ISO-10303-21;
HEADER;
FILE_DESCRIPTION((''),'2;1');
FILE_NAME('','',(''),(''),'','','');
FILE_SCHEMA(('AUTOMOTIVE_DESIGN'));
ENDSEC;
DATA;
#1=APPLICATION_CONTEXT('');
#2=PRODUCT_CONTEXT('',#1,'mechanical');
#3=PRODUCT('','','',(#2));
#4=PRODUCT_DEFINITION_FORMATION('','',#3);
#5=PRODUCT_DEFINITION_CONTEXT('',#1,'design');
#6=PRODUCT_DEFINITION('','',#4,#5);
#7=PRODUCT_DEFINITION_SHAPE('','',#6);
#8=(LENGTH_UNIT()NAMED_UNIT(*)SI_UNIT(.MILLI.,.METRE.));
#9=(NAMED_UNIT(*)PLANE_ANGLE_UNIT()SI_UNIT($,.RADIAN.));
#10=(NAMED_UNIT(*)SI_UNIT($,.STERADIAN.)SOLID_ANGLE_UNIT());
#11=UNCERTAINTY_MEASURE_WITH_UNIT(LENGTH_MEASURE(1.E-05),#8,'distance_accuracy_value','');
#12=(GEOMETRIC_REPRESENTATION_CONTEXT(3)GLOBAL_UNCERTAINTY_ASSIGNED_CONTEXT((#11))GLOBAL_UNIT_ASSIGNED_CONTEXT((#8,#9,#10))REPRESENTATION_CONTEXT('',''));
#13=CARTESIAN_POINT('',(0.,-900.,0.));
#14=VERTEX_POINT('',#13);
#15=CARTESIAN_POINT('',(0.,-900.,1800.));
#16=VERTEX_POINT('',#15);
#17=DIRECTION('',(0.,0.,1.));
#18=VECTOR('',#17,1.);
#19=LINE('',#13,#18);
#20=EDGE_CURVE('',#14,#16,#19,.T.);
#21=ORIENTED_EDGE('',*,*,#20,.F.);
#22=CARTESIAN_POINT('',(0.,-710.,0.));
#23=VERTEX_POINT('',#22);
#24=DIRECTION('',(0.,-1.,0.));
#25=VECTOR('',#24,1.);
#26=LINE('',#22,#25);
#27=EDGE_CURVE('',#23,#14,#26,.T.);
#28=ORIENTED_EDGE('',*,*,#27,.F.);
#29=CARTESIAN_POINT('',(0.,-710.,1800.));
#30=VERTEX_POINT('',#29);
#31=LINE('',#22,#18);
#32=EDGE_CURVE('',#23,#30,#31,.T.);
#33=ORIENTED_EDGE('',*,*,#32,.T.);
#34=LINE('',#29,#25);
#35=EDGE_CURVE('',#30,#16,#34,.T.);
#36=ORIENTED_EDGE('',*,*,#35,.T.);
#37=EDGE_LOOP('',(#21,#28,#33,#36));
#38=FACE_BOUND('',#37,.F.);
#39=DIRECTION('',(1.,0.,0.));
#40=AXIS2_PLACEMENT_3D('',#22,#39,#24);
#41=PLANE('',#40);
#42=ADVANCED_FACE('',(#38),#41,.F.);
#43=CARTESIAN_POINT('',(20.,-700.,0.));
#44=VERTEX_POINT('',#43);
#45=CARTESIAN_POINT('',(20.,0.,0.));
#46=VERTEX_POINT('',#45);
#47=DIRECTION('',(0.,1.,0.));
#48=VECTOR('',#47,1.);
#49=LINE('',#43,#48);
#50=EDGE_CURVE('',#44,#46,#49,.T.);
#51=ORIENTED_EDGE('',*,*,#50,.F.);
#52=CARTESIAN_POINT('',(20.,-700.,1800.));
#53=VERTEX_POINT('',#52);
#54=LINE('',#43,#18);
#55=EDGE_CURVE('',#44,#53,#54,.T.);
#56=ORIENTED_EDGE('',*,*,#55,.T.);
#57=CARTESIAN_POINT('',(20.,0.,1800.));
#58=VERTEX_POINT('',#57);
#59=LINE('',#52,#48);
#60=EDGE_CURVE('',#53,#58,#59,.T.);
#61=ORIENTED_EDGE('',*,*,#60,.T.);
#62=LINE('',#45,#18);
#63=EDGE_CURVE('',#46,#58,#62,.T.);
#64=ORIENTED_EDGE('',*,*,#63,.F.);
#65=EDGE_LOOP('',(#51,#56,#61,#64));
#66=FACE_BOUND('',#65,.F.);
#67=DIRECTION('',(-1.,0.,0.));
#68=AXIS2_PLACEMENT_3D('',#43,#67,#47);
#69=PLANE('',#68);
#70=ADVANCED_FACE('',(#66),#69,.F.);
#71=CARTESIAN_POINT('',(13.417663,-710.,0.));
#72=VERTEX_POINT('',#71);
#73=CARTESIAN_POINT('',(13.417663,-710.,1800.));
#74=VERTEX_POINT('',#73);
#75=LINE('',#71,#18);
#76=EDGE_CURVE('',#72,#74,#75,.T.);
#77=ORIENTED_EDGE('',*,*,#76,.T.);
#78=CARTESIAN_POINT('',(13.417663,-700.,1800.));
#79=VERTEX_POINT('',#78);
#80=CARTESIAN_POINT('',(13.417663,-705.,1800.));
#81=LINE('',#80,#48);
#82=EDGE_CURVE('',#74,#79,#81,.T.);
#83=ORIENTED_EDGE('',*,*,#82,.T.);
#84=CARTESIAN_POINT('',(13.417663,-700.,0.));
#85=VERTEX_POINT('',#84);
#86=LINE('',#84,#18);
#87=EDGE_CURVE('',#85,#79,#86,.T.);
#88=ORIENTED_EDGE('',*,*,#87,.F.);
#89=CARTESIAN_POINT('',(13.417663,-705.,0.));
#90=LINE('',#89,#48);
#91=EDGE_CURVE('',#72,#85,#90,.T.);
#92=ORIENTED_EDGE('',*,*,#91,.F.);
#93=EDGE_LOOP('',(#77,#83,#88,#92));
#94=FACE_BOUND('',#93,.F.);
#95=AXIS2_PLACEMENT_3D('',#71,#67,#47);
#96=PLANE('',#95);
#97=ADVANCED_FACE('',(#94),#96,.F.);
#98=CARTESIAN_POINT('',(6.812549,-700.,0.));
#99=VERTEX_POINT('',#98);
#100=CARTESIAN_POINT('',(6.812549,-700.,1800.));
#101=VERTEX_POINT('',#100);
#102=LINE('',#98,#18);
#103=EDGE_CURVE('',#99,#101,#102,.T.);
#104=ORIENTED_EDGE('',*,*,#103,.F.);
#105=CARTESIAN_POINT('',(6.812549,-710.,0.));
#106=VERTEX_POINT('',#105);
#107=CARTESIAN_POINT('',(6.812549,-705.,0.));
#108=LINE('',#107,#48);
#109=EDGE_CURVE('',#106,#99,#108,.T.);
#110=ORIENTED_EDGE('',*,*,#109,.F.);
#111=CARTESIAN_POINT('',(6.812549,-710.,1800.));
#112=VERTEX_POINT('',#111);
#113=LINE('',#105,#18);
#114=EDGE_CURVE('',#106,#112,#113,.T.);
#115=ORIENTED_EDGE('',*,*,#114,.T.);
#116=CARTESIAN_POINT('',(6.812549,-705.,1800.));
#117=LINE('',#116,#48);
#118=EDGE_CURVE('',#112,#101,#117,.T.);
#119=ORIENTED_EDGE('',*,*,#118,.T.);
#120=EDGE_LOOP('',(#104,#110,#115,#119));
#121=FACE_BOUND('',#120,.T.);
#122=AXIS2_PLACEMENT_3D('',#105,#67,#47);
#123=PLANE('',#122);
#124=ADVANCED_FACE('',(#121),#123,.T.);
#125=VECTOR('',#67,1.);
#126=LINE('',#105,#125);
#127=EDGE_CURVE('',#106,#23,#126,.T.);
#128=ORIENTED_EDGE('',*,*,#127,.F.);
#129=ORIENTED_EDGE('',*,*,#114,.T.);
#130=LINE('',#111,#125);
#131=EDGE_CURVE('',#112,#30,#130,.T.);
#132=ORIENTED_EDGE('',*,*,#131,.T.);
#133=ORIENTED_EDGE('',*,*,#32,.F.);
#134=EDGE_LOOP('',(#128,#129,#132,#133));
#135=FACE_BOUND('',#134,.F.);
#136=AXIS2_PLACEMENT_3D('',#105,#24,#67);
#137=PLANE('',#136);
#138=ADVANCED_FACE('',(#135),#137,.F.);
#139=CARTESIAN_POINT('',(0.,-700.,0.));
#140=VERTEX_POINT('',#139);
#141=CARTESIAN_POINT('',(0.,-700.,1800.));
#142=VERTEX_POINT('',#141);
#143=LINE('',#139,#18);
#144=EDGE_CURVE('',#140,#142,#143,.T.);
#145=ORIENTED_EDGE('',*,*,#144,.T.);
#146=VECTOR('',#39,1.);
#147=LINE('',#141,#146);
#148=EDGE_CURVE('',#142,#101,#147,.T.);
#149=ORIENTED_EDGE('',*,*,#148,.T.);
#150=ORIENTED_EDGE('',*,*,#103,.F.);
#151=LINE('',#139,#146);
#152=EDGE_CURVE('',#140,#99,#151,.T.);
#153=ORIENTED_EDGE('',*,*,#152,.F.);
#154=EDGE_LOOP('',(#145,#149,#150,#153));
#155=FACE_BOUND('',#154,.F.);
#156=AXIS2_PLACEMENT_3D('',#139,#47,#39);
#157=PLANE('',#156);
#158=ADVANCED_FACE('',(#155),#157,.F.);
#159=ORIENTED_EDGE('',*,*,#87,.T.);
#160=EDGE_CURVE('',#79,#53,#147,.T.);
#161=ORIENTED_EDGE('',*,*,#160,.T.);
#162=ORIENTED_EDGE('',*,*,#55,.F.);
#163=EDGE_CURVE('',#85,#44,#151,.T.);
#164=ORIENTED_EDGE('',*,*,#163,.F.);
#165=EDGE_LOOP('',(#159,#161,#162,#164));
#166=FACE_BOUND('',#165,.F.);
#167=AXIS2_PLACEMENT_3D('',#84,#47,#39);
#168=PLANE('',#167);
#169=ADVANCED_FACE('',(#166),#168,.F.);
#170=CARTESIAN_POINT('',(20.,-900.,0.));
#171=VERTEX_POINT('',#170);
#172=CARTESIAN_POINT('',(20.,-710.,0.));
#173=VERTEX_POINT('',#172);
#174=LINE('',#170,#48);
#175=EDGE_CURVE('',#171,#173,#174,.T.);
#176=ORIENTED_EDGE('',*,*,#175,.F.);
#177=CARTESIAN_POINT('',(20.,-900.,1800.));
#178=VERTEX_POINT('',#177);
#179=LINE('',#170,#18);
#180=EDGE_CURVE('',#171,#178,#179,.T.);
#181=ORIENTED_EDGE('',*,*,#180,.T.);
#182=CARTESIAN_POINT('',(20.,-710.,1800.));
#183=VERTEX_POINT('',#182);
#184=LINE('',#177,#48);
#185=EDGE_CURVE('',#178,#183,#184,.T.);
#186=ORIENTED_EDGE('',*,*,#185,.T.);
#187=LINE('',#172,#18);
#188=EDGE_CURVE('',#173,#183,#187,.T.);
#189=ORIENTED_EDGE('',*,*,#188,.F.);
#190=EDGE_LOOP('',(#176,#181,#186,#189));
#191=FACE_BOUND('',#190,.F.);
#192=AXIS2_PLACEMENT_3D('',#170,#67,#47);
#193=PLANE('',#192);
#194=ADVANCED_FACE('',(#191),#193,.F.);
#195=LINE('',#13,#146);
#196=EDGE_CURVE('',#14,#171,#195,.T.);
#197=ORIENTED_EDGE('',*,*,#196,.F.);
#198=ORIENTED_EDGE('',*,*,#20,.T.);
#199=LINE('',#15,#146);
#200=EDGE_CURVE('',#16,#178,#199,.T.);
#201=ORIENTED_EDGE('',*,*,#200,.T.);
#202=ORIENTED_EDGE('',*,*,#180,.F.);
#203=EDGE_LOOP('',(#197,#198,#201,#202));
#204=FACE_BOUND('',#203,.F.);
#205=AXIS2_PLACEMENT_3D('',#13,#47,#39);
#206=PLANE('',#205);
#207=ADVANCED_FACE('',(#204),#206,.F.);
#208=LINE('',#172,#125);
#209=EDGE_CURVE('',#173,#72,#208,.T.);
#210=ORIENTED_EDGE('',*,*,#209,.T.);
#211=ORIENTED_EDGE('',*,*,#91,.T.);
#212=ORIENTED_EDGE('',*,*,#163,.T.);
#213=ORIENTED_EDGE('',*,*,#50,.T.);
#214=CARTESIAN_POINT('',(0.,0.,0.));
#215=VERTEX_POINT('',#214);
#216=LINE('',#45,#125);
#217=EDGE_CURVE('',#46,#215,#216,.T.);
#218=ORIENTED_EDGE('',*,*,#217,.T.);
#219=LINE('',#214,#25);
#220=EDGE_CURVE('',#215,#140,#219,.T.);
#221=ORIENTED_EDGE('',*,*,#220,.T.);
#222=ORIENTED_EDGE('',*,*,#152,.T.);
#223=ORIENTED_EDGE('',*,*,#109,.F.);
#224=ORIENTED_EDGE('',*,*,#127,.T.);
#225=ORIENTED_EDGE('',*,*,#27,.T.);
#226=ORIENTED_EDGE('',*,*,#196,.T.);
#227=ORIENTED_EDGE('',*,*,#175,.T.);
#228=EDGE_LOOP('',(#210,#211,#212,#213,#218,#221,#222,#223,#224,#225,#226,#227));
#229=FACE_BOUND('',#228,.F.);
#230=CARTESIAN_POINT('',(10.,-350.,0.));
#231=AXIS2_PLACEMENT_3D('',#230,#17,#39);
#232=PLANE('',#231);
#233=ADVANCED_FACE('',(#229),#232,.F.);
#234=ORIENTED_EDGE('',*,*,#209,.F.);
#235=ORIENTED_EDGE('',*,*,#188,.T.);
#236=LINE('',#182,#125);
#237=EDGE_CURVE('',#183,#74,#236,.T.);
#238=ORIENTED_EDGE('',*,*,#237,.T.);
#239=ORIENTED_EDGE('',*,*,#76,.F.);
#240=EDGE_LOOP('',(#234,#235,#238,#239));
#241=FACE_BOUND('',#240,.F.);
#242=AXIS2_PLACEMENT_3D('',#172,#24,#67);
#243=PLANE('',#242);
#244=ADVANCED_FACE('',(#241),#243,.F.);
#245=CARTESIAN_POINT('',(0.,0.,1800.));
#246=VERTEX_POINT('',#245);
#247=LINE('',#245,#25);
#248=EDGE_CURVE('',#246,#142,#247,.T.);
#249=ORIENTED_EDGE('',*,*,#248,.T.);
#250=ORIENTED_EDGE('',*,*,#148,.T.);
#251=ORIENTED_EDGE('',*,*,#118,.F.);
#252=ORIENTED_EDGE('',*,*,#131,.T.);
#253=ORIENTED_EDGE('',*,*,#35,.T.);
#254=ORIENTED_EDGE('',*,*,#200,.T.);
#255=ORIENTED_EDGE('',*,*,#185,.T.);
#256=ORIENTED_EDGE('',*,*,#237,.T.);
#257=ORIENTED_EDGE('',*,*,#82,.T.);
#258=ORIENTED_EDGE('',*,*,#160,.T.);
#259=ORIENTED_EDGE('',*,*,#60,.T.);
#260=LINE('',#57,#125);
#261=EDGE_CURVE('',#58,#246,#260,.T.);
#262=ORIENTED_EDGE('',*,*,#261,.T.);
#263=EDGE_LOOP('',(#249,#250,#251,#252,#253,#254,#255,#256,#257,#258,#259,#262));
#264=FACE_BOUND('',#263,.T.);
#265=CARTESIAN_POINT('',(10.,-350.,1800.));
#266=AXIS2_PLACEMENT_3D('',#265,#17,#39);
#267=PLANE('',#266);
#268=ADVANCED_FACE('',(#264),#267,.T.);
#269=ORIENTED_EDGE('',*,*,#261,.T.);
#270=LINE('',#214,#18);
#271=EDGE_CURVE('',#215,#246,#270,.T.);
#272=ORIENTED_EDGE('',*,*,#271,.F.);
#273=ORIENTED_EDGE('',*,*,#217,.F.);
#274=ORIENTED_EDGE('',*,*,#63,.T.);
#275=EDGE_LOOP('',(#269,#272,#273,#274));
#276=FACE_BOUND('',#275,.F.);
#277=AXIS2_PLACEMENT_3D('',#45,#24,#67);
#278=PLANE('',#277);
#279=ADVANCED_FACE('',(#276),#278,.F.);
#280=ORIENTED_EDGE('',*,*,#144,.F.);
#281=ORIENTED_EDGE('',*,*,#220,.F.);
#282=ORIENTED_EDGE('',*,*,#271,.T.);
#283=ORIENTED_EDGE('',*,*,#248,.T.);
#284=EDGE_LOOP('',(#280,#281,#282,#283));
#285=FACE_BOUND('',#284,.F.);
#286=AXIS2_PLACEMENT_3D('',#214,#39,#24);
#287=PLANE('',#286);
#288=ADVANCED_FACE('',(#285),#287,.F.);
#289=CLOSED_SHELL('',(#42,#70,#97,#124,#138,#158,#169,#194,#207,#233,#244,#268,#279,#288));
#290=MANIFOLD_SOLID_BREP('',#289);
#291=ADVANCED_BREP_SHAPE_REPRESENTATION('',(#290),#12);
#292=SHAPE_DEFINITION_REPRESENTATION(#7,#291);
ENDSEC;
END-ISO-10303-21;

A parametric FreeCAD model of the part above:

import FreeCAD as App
import Part
import Sketcher

doc = App.newDocument("Part")
body = doc.addObject("PartDesign::Body", "Body")

sketch1 = body.newObject("Sketcher::SketchObject", "Sketch")
sketch1.AttachmentSupport = (doc.getObject("XY_Plane"), [""])
sketch1.MapMode = "FlatFace"
sketch1.addGeometry([
    Part.LineSegment(App.Vector(20, 0, 0), App.Vector(0, 0, 0)),
    Part.LineSegment(App.Vector(0, 0, 0), App.Vector(0, -700, 0)),
    Part.LineSegment(App.Vector(0, -700, 0), App.Vector(7, -700, 0)),
    Part.LineSegment(App.Vector(7, -700, 0), App.Vector(7, -710, 0)),
    Part.LineSegment(App.Vector(7, -710, 0), App.Vector(0, -710, 0)),
    Part.LineSegment(App.Vector(0, -710, 0), App.Vector(0, -900, 0)),
    Part.LineSegment(App.Vector(0, -900, 0), App.Vector(20, -900, 0)),
    Part.LineSegment(App.Vector(20, -900, 0), App.Vector(20, -710, 0)),
    Part.LineSegment(App.Vector(20, -710, 0), App.Vector(13, -710, 0)),
    Part.LineSegment(App.Vector(13, -710, 0), App.Vector(13, -700, 0)),
    Part.LineSegment(App.Vector(13, -700, 0), App.Vector(20, -700, 0)),
    Part.LineSegment(App.Vector(20, -700, 0), App.Vector(20, 0, 0)),
], False)
sketch1.addConstraint([
    Sketcher.Constraint("Coincident", 0, 2, 1, 1),
    Sketcher.Constraint("Coincident", 1, 2, 2, 1),
    Sketcher.Constraint("Coincident", 2, 2, 3, 1),
    Sketcher.Constraint("Coincident", 3, 2, 4, 1),
    Sketcher.Constraint("Coincident", 4, 2, 5, 1),
    Sketcher.Constraint("Coincident", 5, 2, 6, 1),
    Sketcher.Constraint("Coincident", 6, 2, 7, 1),
    Sketcher.Constraint("Coincident", 7, 2, 8, 1),
    Sketcher.Constraint("Coincident", 8, 2, 9, 1),
    Sketcher.Constraint("Coincident", 9, 2, 10, 1),
    Sketcher.Constraint("Coincident", 10, 2, 11, 1),
    Sketcher.Constraint("Coincident", 11, 2, 0, 1),
    Sketcher.Constraint("Horizontal", 0),
    Sketcher.Constraint("Vertical", 1),
    Sketcher.Constraint("Horizontal", 2),
    Sketcher.Constraint("Vertical", 3),
    Sketcher.Constraint("Horizontal", 4),
    Sketcher.Constraint("Vertical", 5),
    Sketcher.Constraint("Horizontal", 6),
    Sketcher.Constraint("Vertical", 7),
    Sketcher.Constraint("Horizontal", 8),
    Sketcher.Constraint("Vertical", 9),
    Sketcher.Constraint("Horizontal", 10),
    Sketcher.Constraint("Vertical", 11),
    Sketcher.Constraint("Coincident", 0, 2, -1, 1),
    Sketcher.Constraint("PointOnObject", 4, 2, -2),
    Sketcher.Constraint("Horizontal", 4, 2, 7, 2),
    Sketcher.Constraint("Horizontal", 2, 2, 9, 2),
    Sketcher.Constraint("Vertical", 7, 2, 10, 2),
    Sketcher.Constraint("DistanceX", 0, 2, 0, 1, 20.0),
    Sketcher.Constraint("DistanceY", 1, 2, 1, 1, 700.0),
    Sketcher.Constraint("DistanceY", 3, 2, 3, 1, 10.0),
    Sketcher.Constraint("DistanceY", 5, 2, 5, 1, 190.0),
    Sketcher.Constraint("DistanceX", 2, 1, 2, 2, 6.812549),
    Sketcher.Constraint("DistanceX", 8, 2, 8, 1, 6.582337),
])
pad1 = body.newObject("PartDesign::Pad", "Pad")
pad1.Profile = sketch1
pad1.Length = 1800

doc.recompute()
